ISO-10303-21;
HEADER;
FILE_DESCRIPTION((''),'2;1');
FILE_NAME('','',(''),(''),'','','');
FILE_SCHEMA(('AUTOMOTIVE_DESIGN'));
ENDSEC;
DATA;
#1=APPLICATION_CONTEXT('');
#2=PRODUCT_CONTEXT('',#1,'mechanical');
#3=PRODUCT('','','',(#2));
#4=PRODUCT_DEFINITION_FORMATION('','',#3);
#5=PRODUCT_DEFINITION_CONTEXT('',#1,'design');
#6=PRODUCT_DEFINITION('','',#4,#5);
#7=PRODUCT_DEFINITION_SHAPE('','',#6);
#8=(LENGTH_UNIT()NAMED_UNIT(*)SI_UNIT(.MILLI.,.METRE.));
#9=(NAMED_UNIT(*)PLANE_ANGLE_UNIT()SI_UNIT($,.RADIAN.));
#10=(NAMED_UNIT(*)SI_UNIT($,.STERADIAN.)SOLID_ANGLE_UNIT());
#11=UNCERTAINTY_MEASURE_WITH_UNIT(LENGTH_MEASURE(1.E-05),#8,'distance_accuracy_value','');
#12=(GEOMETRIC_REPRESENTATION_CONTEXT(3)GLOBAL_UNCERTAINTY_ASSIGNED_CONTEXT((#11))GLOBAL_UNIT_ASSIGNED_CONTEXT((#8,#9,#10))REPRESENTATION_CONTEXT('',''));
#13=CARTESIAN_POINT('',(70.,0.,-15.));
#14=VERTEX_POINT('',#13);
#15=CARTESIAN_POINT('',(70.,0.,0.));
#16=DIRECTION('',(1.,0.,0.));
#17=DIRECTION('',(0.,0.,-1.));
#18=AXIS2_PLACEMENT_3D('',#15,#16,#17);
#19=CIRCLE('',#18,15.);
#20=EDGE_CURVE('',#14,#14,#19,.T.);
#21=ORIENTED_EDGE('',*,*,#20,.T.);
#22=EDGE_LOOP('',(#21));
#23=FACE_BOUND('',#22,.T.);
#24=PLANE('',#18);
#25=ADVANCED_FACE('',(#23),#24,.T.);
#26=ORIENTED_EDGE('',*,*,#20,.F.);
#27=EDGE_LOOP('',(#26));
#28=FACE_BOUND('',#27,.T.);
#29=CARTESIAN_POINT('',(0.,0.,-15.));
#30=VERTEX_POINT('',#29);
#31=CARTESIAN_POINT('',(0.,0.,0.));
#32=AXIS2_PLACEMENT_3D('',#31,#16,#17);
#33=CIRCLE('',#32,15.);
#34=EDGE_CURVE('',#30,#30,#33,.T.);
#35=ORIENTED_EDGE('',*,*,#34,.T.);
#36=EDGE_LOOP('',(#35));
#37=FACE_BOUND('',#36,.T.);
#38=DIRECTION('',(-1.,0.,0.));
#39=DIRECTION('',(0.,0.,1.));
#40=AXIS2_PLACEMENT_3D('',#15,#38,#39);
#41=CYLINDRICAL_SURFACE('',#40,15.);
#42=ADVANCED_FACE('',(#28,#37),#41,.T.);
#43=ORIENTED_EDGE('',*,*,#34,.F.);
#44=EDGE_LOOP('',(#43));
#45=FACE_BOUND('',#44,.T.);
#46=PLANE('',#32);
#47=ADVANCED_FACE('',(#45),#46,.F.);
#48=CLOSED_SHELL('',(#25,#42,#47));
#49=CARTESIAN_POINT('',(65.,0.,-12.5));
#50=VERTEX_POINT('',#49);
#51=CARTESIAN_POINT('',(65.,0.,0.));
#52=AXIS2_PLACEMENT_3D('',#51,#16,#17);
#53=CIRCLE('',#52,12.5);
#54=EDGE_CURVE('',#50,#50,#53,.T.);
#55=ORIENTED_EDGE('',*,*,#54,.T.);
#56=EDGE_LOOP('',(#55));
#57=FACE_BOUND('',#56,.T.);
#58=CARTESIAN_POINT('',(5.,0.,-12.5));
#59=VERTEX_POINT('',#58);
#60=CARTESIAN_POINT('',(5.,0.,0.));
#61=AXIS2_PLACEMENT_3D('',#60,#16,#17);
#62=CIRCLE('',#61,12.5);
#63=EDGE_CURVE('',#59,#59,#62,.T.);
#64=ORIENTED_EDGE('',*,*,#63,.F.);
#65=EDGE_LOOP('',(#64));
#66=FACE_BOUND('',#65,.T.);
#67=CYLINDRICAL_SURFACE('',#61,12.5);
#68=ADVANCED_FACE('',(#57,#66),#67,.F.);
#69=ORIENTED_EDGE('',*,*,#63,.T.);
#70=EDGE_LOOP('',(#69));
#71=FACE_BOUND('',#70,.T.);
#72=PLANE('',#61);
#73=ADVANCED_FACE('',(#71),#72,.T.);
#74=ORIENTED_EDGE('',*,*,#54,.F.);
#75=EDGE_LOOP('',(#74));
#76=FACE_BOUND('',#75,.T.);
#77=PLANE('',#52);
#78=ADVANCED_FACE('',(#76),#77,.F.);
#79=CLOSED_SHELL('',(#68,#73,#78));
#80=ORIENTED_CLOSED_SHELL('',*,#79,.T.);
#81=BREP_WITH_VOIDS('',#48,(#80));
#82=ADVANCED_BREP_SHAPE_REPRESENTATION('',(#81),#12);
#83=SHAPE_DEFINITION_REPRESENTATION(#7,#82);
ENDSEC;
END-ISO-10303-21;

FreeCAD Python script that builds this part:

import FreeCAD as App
import Part
import Sketcher

doc = App.newDocument("Part")
body = doc.addObject("PartDesign::Body", "Body")

sketch1 = body.newObject("Sketcher::SketchObject", "Sketch")
sketch1.AttachmentSupport = (doc.getObject("YZ_Plane"), [""])
sketch1.MapMode = "FlatFace"
sketch1.addGeometry(Part.Circle(App.Vector(0, 0, 0), App.Vector(0, 0, 1), 15), False)
sketch1.addConstraint([
    Sketcher.Constraint("Coincident", 0, 3, -1, 1),
    Sketcher.Constraint("Diameter", 0, 30.0),
])
pad1 = body.newObject("PartDesign::Pad", "Pad")
pad1.Profile = sketch1
pad1.Length = 70

sketch2 = body.newObject("Sketcher::SketchObject", "Sketch001")
sketch2.AttachmentSupport = (doc.getObject("YZ_Plane"), [""])
sketch2.MapMode = "FlatFace"
sketch2.AttachmentOffset = App.Placement(App.Vector(0, 0, 65), App.Rotation())
sketch2.addGeometry(Part.Circle(App.Vector(0, 0, 0), App.Vector(0, 0, 1), 12.5), False)
sketch2.addConstraint([
    Sketcher.Constraint("Coincident", 0, 3, -1, 1),
    Sketcher.Constraint("Diameter", 0, 25.0),
])
pocket1 = body.newObject("PartDesign::Pocket", "Pocket")
pocket1.Profile = sketch2
pocket1.Length = 60

doc.recompute()
